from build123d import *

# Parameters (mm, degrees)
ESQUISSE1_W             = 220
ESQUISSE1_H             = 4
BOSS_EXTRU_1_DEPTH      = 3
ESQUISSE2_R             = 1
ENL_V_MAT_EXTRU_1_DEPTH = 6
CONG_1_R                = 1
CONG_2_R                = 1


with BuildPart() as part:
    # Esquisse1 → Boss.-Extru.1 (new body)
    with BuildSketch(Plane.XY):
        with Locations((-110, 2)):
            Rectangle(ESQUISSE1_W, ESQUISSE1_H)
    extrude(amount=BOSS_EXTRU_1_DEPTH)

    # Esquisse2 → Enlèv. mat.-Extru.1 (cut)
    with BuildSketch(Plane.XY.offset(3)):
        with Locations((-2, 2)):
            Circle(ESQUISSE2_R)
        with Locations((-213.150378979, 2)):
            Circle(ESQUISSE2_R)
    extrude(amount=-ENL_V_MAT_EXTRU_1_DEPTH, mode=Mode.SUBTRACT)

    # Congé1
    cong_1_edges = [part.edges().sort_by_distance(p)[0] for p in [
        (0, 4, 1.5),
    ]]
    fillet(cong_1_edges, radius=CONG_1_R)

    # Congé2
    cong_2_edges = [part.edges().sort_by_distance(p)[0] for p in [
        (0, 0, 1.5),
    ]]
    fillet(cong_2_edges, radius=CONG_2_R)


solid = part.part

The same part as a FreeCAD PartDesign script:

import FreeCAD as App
import Part
import Sketcher


def edges_at(feature, points):
    """Names of the edges that pass closest to the given points."""
    edges = feature.Shape.Edges
    near = lambda p: min(range(len(edges)), key=lambda i: edges[i].distToShape(Part.Vertex(*p))[0])
    return sorted({f"Edge{near(p) + 1}" for p in points})


def add_polygon(sketch, points):
    """Adds a closed chain of lines whose ends are joined by coincident constraints."""
    first, n = sketch.GeometryCount, len(points)
    for a, b in zip(points, points[1:] + points[:1]):
        sketch.addGeometry(Part.LineSegment(App.Vector(*a, 0), App.Vector(*b, 0)), False)
    for i in range(n):
        sketch.addConstraint(Sketcher.Constraint("Coincident", first + i, 2, first + (i + 1) % n, 1))

doc = App.newDocument("Part")
body = doc.addObject("PartDesign::Body", "Body")

# Sketch on XY plane
sketch1 = body.newObject("Sketcher::SketchObject", "Sketch")
sketch1.AttachmentSupport = (doc.getObject("XY_Plane"), [""])
sketch1.MapMode = "FlatFace"
add_polygon(sketch1, [(-220, 4), (-220, 0), (0, 0), (0, 4)])  # lines 0-3
sketch1.addConstraint(Sketcher.Constraint("Vertical", 0))
sketch1.addConstraint(Sketcher.Constraint("Horizontal", 1))
sketch1.addConstraint(Sketcher.Constraint("Vertical", 2))
sketch1.addConstraint(Sketcher.Constraint("Horizontal", 3))
sketch1.addConstraint(Sketcher.Constraint("Coincident", 1, 2, -1, 1))
sketch1.addConstraint(Sketcher.Constraint("DistanceX", 1, 1, 1, 2, 220.0))
sketch1.addConstraint(Sketcher.Constraint("DistanceY", 0, 2, 0, 1, 4.0))
pad1 = body.newObject("PartDesign::Pad", "Pad")
pad1.Profile = sketch1
pad1.Length = 3

# Sketch on XY plane
sketch2 = body.newObject("Sketcher::SketchObject", "Sketch001")
sketch2.AttachmentSupport = (doc.getObject("XY_Plane"), [""])
sketch2.MapMode = "FlatFace"
sketch2.AttachmentOffset = App.Placement(App.Vector(0, 0, 3), App.Rotation())
sketch2.addGeometry(Part.Circle(App.Vector(-2, 2, 0), App.Vector(0, 0, 1), 1), False)
sketch2.addGeometry(Part.Circle(App.Vector(-213.2, 2, 0), App.Vector(0, 0, 1), 1), False)
sketch2.addConstraint(Sketcher.Constraint("Equal", 0, 1))
sketch2.addConstraint(Sketcher.Constraint("Horizontal", 0, 3, 1, 3))
sketch2.addConstraint(Sketcher.Constraint("Diameter", 0, 2.0))
sketch2.addConstraint(Sketcher.Constraint("DistanceX", 0, 3, -1, 1, 2.0))
sketch2.addConstraint(Sketcher.Constraint("DistanceY", -1, 1, 0, 3, 2.0))
sketch2.addConstraint(Sketcher.Constraint("DistanceX", 1, 3, -1, 1, 213.150379))
pocket1 = body.newObject("PartDesign::Pocket", "Pocket")
pocket1.Profile = sketch2
pocket1.Length = 6
doc.recompute()

fillet = body.newObject("PartDesign::Fillet", "Fillet")
fillet.Base = (pocket1, edges_at(pocket1, [(0, 4, 1.5)]))
fillet.Radius = 1
doc.recompute()

fillet2 = body.newObject("PartDesign::Fillet", "Fillet001")
fillet2.Base = (fillet, edges_at(fillet, [(0, 0, 1.5)]))
fillet2.Radius = 1

doc.recompute()
